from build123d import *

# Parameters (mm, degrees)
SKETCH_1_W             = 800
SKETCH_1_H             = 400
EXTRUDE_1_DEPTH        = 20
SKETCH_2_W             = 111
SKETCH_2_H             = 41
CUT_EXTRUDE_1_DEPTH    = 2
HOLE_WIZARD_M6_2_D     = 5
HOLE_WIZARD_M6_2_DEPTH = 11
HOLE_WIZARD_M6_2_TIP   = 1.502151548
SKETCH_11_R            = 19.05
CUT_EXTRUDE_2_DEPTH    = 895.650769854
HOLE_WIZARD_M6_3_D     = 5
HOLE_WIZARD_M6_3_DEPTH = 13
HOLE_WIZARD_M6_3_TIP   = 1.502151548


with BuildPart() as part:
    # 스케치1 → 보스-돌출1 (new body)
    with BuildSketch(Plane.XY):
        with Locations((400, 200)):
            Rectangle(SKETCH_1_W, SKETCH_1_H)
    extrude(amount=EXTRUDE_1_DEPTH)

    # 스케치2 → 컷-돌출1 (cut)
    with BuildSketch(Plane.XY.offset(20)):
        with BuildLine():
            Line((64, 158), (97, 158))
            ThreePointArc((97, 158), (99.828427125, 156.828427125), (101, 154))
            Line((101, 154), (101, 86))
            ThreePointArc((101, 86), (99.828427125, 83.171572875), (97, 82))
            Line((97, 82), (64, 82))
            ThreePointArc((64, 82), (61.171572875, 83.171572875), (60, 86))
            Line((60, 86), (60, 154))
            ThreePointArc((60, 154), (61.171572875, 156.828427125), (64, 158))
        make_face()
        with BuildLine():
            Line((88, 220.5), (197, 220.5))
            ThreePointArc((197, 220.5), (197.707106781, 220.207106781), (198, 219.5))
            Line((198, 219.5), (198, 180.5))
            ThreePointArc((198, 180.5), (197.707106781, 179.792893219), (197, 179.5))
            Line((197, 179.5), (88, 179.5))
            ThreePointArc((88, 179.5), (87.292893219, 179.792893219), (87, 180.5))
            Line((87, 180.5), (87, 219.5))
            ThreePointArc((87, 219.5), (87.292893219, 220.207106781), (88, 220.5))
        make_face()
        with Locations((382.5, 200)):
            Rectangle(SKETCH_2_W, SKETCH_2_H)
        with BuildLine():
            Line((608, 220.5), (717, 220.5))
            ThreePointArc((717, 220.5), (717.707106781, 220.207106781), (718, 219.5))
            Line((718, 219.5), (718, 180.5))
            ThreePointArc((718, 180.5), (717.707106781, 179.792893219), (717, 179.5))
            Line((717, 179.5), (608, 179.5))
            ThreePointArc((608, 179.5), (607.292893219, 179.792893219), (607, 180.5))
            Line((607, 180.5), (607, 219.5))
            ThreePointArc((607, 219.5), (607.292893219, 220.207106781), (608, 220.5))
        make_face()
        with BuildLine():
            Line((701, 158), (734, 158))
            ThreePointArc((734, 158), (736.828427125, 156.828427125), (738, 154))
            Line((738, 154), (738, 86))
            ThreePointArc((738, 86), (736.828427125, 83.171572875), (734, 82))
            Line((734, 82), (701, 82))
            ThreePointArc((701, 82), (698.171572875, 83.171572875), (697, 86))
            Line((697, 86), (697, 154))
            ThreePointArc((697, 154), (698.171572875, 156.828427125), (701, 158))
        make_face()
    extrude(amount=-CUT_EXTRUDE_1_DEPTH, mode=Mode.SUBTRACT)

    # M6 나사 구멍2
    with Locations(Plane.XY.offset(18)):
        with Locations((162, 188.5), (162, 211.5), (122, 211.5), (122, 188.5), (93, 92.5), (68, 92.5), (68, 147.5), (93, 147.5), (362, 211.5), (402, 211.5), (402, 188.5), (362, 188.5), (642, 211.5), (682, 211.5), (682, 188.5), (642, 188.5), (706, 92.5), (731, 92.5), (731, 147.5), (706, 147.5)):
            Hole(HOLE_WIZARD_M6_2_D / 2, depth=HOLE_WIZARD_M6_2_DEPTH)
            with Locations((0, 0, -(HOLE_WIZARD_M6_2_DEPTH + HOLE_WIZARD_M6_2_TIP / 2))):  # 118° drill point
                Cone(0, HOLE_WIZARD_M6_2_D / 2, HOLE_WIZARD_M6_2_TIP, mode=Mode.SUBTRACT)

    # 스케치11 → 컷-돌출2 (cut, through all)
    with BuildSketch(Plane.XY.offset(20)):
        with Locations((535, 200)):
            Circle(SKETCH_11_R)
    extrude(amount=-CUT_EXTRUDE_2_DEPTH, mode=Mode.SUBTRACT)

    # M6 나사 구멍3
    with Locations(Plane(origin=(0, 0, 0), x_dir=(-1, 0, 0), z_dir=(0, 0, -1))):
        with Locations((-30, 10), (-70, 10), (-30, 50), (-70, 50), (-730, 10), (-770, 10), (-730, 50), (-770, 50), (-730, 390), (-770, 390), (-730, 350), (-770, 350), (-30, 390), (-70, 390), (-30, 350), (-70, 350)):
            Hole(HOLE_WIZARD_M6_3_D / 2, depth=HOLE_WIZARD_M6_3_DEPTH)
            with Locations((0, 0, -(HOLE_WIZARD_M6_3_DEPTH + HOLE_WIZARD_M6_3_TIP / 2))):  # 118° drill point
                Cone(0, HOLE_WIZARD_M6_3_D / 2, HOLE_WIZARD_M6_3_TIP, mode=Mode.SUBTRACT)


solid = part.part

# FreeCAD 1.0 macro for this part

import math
import FreeCAD as App
import Part
import Sketcher

V = App.Vector


def add_polygon(sketch, points):
    """Adds a closed chain of lines whose ends are joined by coincident constraints."""
    first, n = sketch.GeometryCount, len(points)
    for a, b in zip(points, points[1:] + points[:1]):
        sketch.addGeometry(Part.LineSegment(App.Vector(*a, 0), App.Vector(*b, 0)), False)
    for i in range(n):
        sketch.addConstraint(Sketcher.Constraint("Coincident", first + i, 2, first + (i + 1) % n, 1))

doc = App.newDocument("Part")
body = doc.addObject("PartDesign::Body", "Body")

# Sketch on XY plane
sketch1 = body.newObject("Sketcher::SketchObject", "Sketch")
sketch1.AttachmentSupport = (doc.getObject("XY_Plane"), [""])
sketch1.MapMode = "FlatFace"
add_polygon(sketch1, [(0, 400), (0, 0), (800, 0), (800, 400)])  # lines 0-3
sketch1.addConstraint([
    Sketcher.Constraint("Vertical", 0),
    Sketcher.Constraint("Horizontal", 1),
    Sketcher.Constraint("Vertical", 2),
    Sketcher.Constraint("Horizontal", 3),
    Sketcher.Constraint("Coincident", 0, 2, -1, 1),
    Sketcher.Constraint("DistanceX", 1, 1, 1, 2, 800.0),
    Sketcher.Constraint("DistanceY", 0, 2, 0, 1, 400.0),
])
pad1 = body.newObject("PartDesign::Pad", "Pad")
pad1.Profile = sketch1
pad1.Length = 20

# Sketch on XY plane
sketch2 = body.newObject("Sketcher::SketchObject", "Sketch001")
sketch2.AttachmentSupport = (doc.getObject("XY_Plane"), [""])
sketch2.MapMode = "FlatFace"
sketch2.AttachmentOffset = App.Placement(V(0, 0, 20), App.Rotation())
sketch2.addGeometry(Part.LineSegment(V(97, 158, 0), V(64, 158, 0)), False)  # 0
sketch2.addGeometry(Part.ArcOfCircle(Part.Circle(V(64, 154, 0), V(0, 0, 1), 4), math.radians(90), math.radians(180)), False)  # 1
sketch2.addGeometry(Part.LineSegment(V(60, 154, 0), V(60, 86, 0)), False)  # 2
sketch2.addGeometry(Part.ArcOfCircle(Part.Circle(V(64, 86, 0), V(0, 0, 1), 4), math.radians(180), math.radians(270)), False)  # 3
sketch2.addGeometry(Part.LineSegment(V(64, 82, 0), V(97, 82, 0)), False)  # 4
sketch2.addGeometry(Part.ArcOfCircle(Part.Circle(V(97, 86, 0), V(0, 0, 1), 4), math.radians(-90), math.radians(0)), False)  # 5
sketch2.addGeometry(Part.LineSegment(V(101, 86, 0), V(101, 154, 0)), False)  # 6
sketch2.addGeometry(Part.ArcOfCircle(Part.Circle(V(97, 154, 0), V(0, 0, 1), 4), math.radians(0), math.radians(90)), False)  # 7
sketch2.addGeometry(Part.LineSegment(V(197, 220.5, 0), V(88, 220.5, 0)), False)  # 8
sketch2.addGeometry(Part.ArcOfCircle(Part.Circle(V(88, 219.5, 0), V(0, 0, 1), 1), math.radians(90), math.radians(180)), False)  # 9
sketch2.addGeometry(Part.LineSegment(V(87, 219.5, 0), V(87, 180.5, 0)), False)  # 10
sketch2.addGeometry(Part.ArcOfCircle(Part.Circle(V(88, 180.5, 0), V(0, 0, 1), 1), math.radians(-180), math.radians(-90)), False)  # 11
sketch2.addGeometry(Part.LineSegment(V(88, 179.5, 0), V(197, 179.5, 0)), False)  # 12
sketch2.addGeometry(Part.ArcOfCircle(Part.Circle(V(197, 180.5, 0), V(0, 0, 1), 1), math.radians(-90), math.radians(0)), False)  # 13
sketch2.addGeometry(Part.LineSegment(V(198, 180.5, 0), V(198, 219.5, 0)), False)  # 14
sketch2.addGeometry(Part.ArcOfCircle(Part.Circle(V(197, 219.5, 0), V(0, 0, 1), 1), math.radians(0), math.radians(90)), False)  # 15
add_polygon(sketch2, [(327, 220.5), (327, 179.5), (438, 179.5), (438, 220.5)])  # lines 16-19
sketch2.addGeometry(Part.LineSegment(V(717, 220.5, 0), V(608, 220.5, 0)), False)  # 20
sketch2.addGeometry(Part.ArcOfCircle(Part.Circle(V(608, 219.5, 0), V(0, 0, 1), 1), math.radians(90), math.radians(180)), False)  # 21
sketch2.addGeometry(Part.LineSegment(V(607, 219.5, 0), V(607, 180.5, 0)), False)  # 22
sketch2.addGeometry(Part.ArcOfCircle(Part.Circle(V(608, 180.5, 0), V(0, 0, 1), 1), math.radians(-180), math.radians(-90)), False)  # 23
sketch2.addGeometry(Part.LineSegment(V(608, 179.5, 0), V(717, 179.5, 0)), False)  # 24
sketch2.addGeometry(Part.ArcOfCircle(Part.Circle(V(717, 180.5, 0), V(0, 0, 1), 1), math.radians(-90), math.radians(0)), False)  # 25
sketch2.addGeometry(Part.LineSegment(V(718, 180.5, 0), V(718, 219.5, 0)), False)  # 26
sketch2.addGeometry(Part.ArcOfCircle(Part.Circle(V(717, 219.5, 0), V(0, 0, 1), 1), math.radians(0), math.radians(90)), False)  # 27
sketch2.addGeometry(Part.LineSegment(V(734, 158, 0), V(701, 158, 0)), False)  # 28
sketch2.addGeometry(Part.ArcOfCircle(Part.Circle(V(701, 154, 0), V(0, 0, 1), 4), math.radians(90), math.radians(180)), False)  # 29
sketch2.addGeometry(Part.LineSegment(V(697, 154, 0), V(697, 86, 0)), False)  # 30
sketch2.addGeometry(Part.ArcOfCircle(Part.Circle(V(701, 86, 0), V(0, 0, 1), 4), math.radians(180), math.radians(270)), False)  # 31
sketch2.addGeometry(Part.LineSegment(V(701, 82, 0), V(734, 82, 0)), False)  # 32
sketch2.addGeometry(Part.ArcOfCircle(Part.Circle(V(734, 86, 0), V(0, 0, 1), 4), math.radians(-90), math.radians(0)), False)  # 33
sketch2.addGeometry(Part.LineSegment(V(738, 86, 0), V(738, 154, 0)), False)  # 34
sketch2.addGeometry(Part.ArcOfCircle(Part.Circle(V(734, 154, 0), V(0, 0, 1), 4), math.radians(0), math.radians(90)), False)  # 35
sketch2.addConstraint([
    Sketcher.Constraint("Tangent", 0, 2, 1, 1),
    Sketcher.Constraint("Tangent", 1, 2, 2, 1),
    Sketcher.Constraint("Tangent", 2, 2, 3, 1),
    Sketcher.Constraint("Tangent", 3, 2, 4, 1),
    Sketcher.Constraint("Tangent", 4, 2, 5, 1),
    Sketcher.Constraint("Tangent", 5, 2, 6, 1),
    Sketcher.Constraint("Tangent", 6, 2, 7, 1),
    Sketcher.Constraint("Tangent", 7, 2, 0, 1),
    Sketcher.Constraint("Tangent", 8, 2, 9, 1),
    Sketcher.Constraint("Tangent", 9, 2, 10, 1),
    Sketcher.Constraint("Tangent", 10, 2, 11, 1),
    Sketcher.Constraint("Tangent", 11, 2, 12, 1),
    Sketcher.Constraint("Tangent", 12, 2, 13, 1),
    Sketcher.Constraint("Tangent", 13, 2, 14, 1),
    Sketcher.Constraint("Tangent", 14, 2, 15, 1),
    Sketcher.Constraint("Tangent", 15, 2, 8, 1),
    Sketcher.Constraint("Tangent", 20, 2, 21, 1),
    Sketcher.Constraint("Tangent", 21, 2, 22, 1),
    Sketcher.Constraint("Tangent", 22, 2, 23, 1),
    Sketcher.Constraint("Tangent", 23, 2, 24, 1),
    Sketcher.Constraint("Tangent", 24, 2, 25, 1),
    Sketcher.Constraint("Tangent", 25, 2, 26, 1),
    Sketcher.Constraint("Tangent", 26, 2, 27, 1),
    Sketcher.Constraint("Tangent", 27, 2, 20, 1),
    Sketcher.Constraint("Tangent", 28, 2, 29, 1),
    Sketcher.Constraint("Tangent", 29, 2, 30, 1),
    Sketcher.Constraint("Tangent", 30, 2, 31, 1),
    Sketcher.Constraint("Tangent", 31, 2, 32, 1),
    Sketcher.Constraint("Tangent", 32, 2, 33, 1),
    Sketcher.Constraint("Tangent", 33, 2, 34, 1),
    Sketcher.Constraint("Tangent", 34, 2, 35, 1),
    Sketcher.Constraint("Tangent", 35, 2, 28, 1),
    Sketcher.Constraint("Horizontal", 0),
    Sketcher.Constraint("Vertical", 2),
    Sketcher.Constraint("Horizontal", 4),
    Sketcher.Constraint("Vertical", 6),
    Sketcher.Constraint("Horizontal", 8),
    Sketcher.Constraint("Vertical", 10),
    Sketcher.Constraint("Horizontal", 12),
    Sketcher.Constraint("Vertical", 14),
    Sketcher.Constraint("Vertical", 16),
    Sketcher.Constraint("Horizontal", 17),
    Sketcher.Constraint("Vertical", 18),
    Sketcher.Constraint("Horizontal", 19),
    Sketcher.Constraint("Horizontal", 20),
    Sketcher.Constraint("Vertical", 22),
    Sketcher.Constraint("Horizontal", 24),
    Sketcher.Constraint("Vertical", 26),
    Sketcher.Constraint("Horizontal", 28),
    Sketcher.Constraint("Vertical", 30),
    Sketcher.Constraint("Horizontal", 32),
    Sketcher.Constraint("Vertical", 34),
    Sketcher.Constraint("Equal", 1, 3),
    Sketcher.Constraint("Equal", 3, 5),
    Sketcher.Constraint("Equal", 5, 7),
    Sketcher.Constraint("Equal", 9, 11),
    Sketcher.Constraint("Equal", 11, 13),
    Sketcher.Constraint("Equal", 13, 15),
    Sketcher.Constraint("Equal", 15, 21),
    Sketcher.Constraint("Equal", 21, 23),
    Sketcher.Constraint("Equal", 23, 25),
    Sketcher.Constraint("Equal", 25, 27),
    Sketcher.Constraint("Equal", 7, 29),
    Sketcher.Constraint("Equal", 29, 31),
    Sketcher.Constraint("Equal", 31, 33),
    Sketcher.Constraint("Equal", 33, 35),
    Sketcher.Constraint("Horizontal", 15, 3, 21, 3),
    Sketcher.Constraint("Horizontal", 13, 3, 23, 3),
    Sketcher.Constraint("Horizontal", 7, 3, 29, 3),
    Sketcher.Constraint("Horizontal", 5, 3, 31, 3),
    Sketcher.Constraint("Horizontal", 12, 2, 16, 2),
    Sketcher.Constraint("Horizontal", 15, 2, 18, 2),
    Sketcher.Constraint("Equal", 12, 20),
    Sketcher.Constraint("Equal", 4, 28),
    Sketcher.Constraint("Radius", 1, 4.0),
    Sketcher.Constraint("Radius", 9, 1.0),
    Sketcher.Constraint("DistanceX", 0, 2, 0, 1, 33.0),
    Sketcher.Constraint("DistanceX", 8, 2, 8, 1, 109.0),
    Sketcher.Constraint("DistanceX", 17, 1, 17, 2, 111.0),
    Sketcher.Constraint("DistanceY", 2, 2, 2, 1, 68.0),
    Sketcher.Constraint("DistanceY", 10, 2, 10, 1, 39.0),
    Sketcher.Constraint("DistanceX", -1, 1, 1, 3, 64.0),
    Sketcher.Constraint("DistanceY", -1, 1, 1, 3, 154.0),
    Sketcher.Constraint("DistanceX", -1, 1, 9, 3, 88.0),
    Sketcher.Constraint("DistanceX", -1, 1, 21, 3, 608.0),
    Sketcher.Constraint("DistanceX", -1, 1, 29, 3, 701.0),
    Sketcher.Constraint("DistanceX", -1, 1, 16, 2, 327.0),
    Sketcher.Constraint("DistanceY", -1, 1, 9, 3, 219.5),
])
pocket1 = body.newObject("PartDesign::Pocket", "Pocket")
pocket1.Profile = sketch2
pocket1.Length = 2

# Sketch on XY plane
sketch3 = body.newObject("Sketcher::SketchObject", "Sketch002")
sketch3.AttachmentSupport = (doc.getObject("XY_Plane"), [""])
sketch3.MapMode = "FlatFace"
sketch3.AttachmentOffset = App.Placement(V(0, 0, 18), App.Rotation())
sketch3.addGeometry([
    Part.Circle(V(162, 188.5, 0), V(0, 0, 1), 2.5),  # 0
    Part.Circle(V(162, 211.5, 0), V(0, 0, 1), 2.5),  # 1
    Part.Circle(V(122, 211.5, 0), V(0, 0, 1), 2.5),  # 2
    Part.Circle(V(122, 188.5, 0), V(0, 0, 1), 2.5),  # 3
    Part.Circle(V(93, 92.5, 0), V(0, 0, 1), 2.5),  # 4
    Part.Circle(V(68, 92.5, 0), V(0, 0, 1), 2.5),  # 5
    Part.Circle(V(68, 147.5, 0), V(0, 0, 1), 2.5),  # 6
    Part.Circle(V(93, 147.5, 0), V(0, 0, 1), 2.5),  # 7
    Part.Circle(V(362, 211.5, 0), V(0, 0, 1), 2.5),  # 8
    Part.Circle(V(402, 211.5, 0), V(0, 0, 1), 2.5),  # 9
    Part.Circle(V(402, 188.5, 0), V(0, 0, 1), 2.5),  # 10
    Part.Circle(V(362, 188.5, 0), V(0, 0, 1), 2.5),  # 11
    Part.Circle(V(642, 211.5, 0), V(0, 0, 1), 2.5),  # 12
    Part.Circle(V(682, 211.5, 0), V(0, 0, 1), 2.5),  # 13
    Part.Circle(V(682, 188.5, 0), V(0, 0, 1), 2.5),  # 14
    Part.Circle(V(642, 188.5, 0), V(0, 0, 1), 2.5),  # 15
    Part.Circle(V(706, 92.5, 0), V(0, 0, 1), 2.5),  # 16
    Part.Circle(V(731, 92.5, 0), V(0, 0, 1), 2.5),  # 17
    Part.Circle(V(731, 147.5, 0), V(0, 0, 1), 2.5),  # 18
    Part.Circle(V(706, 147.5, 0), V(0, 0, 1), 2.5),  # 19
], False)
sketch3.addConstraint([
    Sketcher.Constraint("Equal", 0, 1),
    Sketcher.Constraint("Equal", 1, 2),
    Sketcher.Constraint("Equal", 2, 3),
    Sketcher.Constraint("Equal", 3, 4),
    Sketcher.Constraint("Equal", 4, 5),
    Sketcher.Constraint("Equal", 5, 6),
    Sketcher.Constraint("Equal", 6, 7),
    Sketcher.Constraint("Equal", 7, 8),
    Sketcher.Constraint("Equal", 8, 9),
    Sketcher.Constraint("Equal", 9, 10),
    Sketcher.Constraint("Equal", 10, 11),
    Sketcher.Constraint("Equal", 11, 12),
    Sketcher.Constraint("Equal", 12, 13),
    Sketcher.Constraint("Equal", 13, 14),
    Sketcher.Constraint("Equal", 14, 15),
    Sketcher.Constraint("Equal", 15, 16),
    Sketcher.Constraint("Equal", 16, 17),
    Sketcher.Constraint("Equal", 17, 18),
    Sketcher.Constraint("Equal", 18, 19),
    Sketcher.Constraint("Horizontal", 1, 3, 2, 3),
    Sketcher.Constraint("Horizontal", 0, 3, 3, 3),
    Sketcher.Constraint("Horizontal", 4, 3, 5, 3),
    Sketcher.Constraint("Horizontal", 6, 3, 7, 3),
    Sketcher.Constraint("Horizontal", 2, 3, 8, 3),
    Sketcher.Constraint("Horizontal", 8, 3, 9, 3),
    Sketcher.Constraint("Horizontal", 3, 3, 10, 3),
    Sketcher.Constraint("Horizontal", 10, 3, 11, 3),
    Sketcher.Constraint("Horizontal", 9, 3, 12, 3),
    Sketcher.Constraint("Horizontal", 12, 3, 13, 3),
    Sketcher.Constraint("Horizontal", 11, 3, 14, 3),
    Sketcher.Constraint("Horizontal", 14, 3, 15, 3),
    Sketcher.Constraint("Horizontal", 5, 3, 16, 3),
    Sketcher.Constraint("Horizontal", 16, 3, 17, 3),
    Sketcher.Constraint("Horizontal", 7, 3, 18, 3),
    Sketcher.Constraint("Horizontal", 18, 3, 19, 3),
    Sketcher.Constraint("Vertical", 0, 3, 1, 3),
    Sketcher.Constraint("Vertical", 2, 3, 3, 3),
    Sketcher.Constraint("Vertical", 5, 3, 6, 3),
    Sketcher.Constraint("Vertical", 4, 3, 7, 3),
    Sketcher.Constraint("Vertical", 9, 3, 10, 3),
    Sketcher.Constraint("Vertical", 8, 3, 11, 3),
    Sketcher.Constraint("Vertical", 13, 3, 14, 3),
    Sketcher.Constraint("Vertical", 12, 3, 15, 3),
    Sketcher.Constraint("Vertical", 17, 3, 18, 3),
    Sketcher.Constraint("Vertical", 16, 3, 19, 3),
    Sketcher.Constraint("Diameter", 0, 5.0),
    Sketcher.Constraint("DistanceX", -1, 1, 0, 3, 162.0),
    Sketcher.Constraint("DistanceX", -1, 1, 2, 3, 122.0),
    Sketcher.Constraint("DistanceX", -1, 1, 4, 3, 93.0),
    Sketcher.Constraint("DistanceX", -1, 1, 5, 3, 68.0),
    Sketcher.Constraint("DistanceX", -1, 1, 8, 3, 362.0),
    Sketcher.Constraint("DistanceX", -1, 1, 9, 3, 402.0),
    Sketcher.Constraint("DistanceX", -1, 1, 12, 3, 642.0),
    Sketcher.Constraint("DistanceX", -1, 1, 13, 3, 682.0),
    Sketcher.Constraint("DistanceX", -1, 1, 16, 3, 706.0),
    Sketcher.Constraint("DistanceX", -1, 1, 17, 3, 731.0),
    Sketcher.Constraint("DistanceY", 0, 3, 1, 3, 23.0),
    Sketcher.Constraint("DistanceY", 4, 3, 3, 3, 96.0),
    Sketcher.Constraint("DistanceY", 5, 3, 6, 3, 55.0),
    Sketcher.Constraint("DistanceY", -1, 1, 0, 3, 188.5),
])
doc.recompute()
hole = body.newObject("PartDesign::Hole", "Hole")
hole.Profile = sketch3
hole.ThreadType = "None"
hole.Diameter = 5
hole.DepthType = "Dimension"
hole.Depth = 11
hole.DrillPoint = "Angled"
hole.DrillPointAngle = 118

# Sketch on XY plane
sketch4 = body.newObject("Sketcher::SketchObject", "Sketch003")
sketch4.AttachmentSupport = (doc.getObject("XY_Plane"), [""])
sketch4.MapMode = "FlatFace"
sketch4.AttachmentOffset = App.Placement(V(0, 0, 20), App.Rotation())
sketch4.addGeometry(Part.Circle(V(535, 200, 0), V(0, 0, 1), 19), False)
sketch4.addConstraint([
    Sketcher.Constraint("Diameter", 0, 38.1),
    Sketcher.Constraint("DistanceX", -1, 1, 0, 3, 535.0),
    Sketcher.Constraint("DistanceY", -1, 1, 0, 3, 200.0),
])
pocket2 = body.newObject("PartDesign::Pocket", "Pocket001")
pocket2.Profile = sketch4
pocket2.Type = "ThroughAll"

# Sketch on XY plane
sketch5 = body.newObject("Sketcher::SketchObject", "Sketch004")
sketch5.AttachmentSupport = (doc.getObject("XY_Plane"), [""])
sketch5.MapMode = "FlatFace"
sketch5.addGeometry([
    Part.Circle(V(30, 10, 0), V(0, 0, 1), 2.5),  # 0
    Part.Circle(V(70, 10, 0), V(0, 0, 1), 2.5),  # 1
    Part.Circle(V(30, 50, 0), V(0, 0, 1), 2.5),  # 2
    Part.Circle(V(70, 50, 0), V(0, 0, 1), 2.5),  # 3
    Part.Circle(V(730, 10, 0), V(0, 0, 1), 2.5),  # 4
    Part.Circle(V(770, 10, 0), V(0, 0, 1), 2.5),  # 5
    Part.Circle(V(730, 50, 0), V(0, 0, 1), 2.5),  # 6
    Part.Circle(V(770, 50, 0), V(0, 0, 1), 2.5),  # 7
    Part.Circle(V(730, 390, 0), V(0, 0, 1), 2.5),  # 8
    Part.Circle(V(770, 390, 0), V(0, 0, 1), 2.5),  # 9
    Part.Circle(V(730, 350, 0), V(0, 0, 1), 2.5),  # 10
    Part.Circle(V(770, 350, 0), V(0, 0, 1), 2.5),  # 11
    Part.Circle(V(30, 390, 0), V(0, 0, 1), 2.5),  # 12
    Part.Circle(V(70, 390, 0), V(0, 0, 1), 2.5),  # 13
    Part.Circle(V(30, 350, 0), V(0, 0, 1), 2.5),  # 14
    Part.Circle(V(70, 350, 0), V(0, 0, 1), 2.5),  # 15
], False)
sketch5.addConstraint([
    Sketcher.Constraint("Equal", 0, 1),
    Sketcher.Constraint("Equal", 1, 2),
    Sketcher.Constraint("Equal", 2, 3),
    Sketcher.Constraint("Equal", 3, 4),
    Sketcher.Constraint("Equal", 4, 5),
    Sketcher.Constraint("Equal", 5, 6),
    Sketcher.Constraint("Equal", 6, 7),
    Sketcher.Constraint("Equal", 7, 8),
    Sketcher.Constraint("Equal", 8, 9),
    Sketcher.Constraint("Equal", 9, 10),
    Sketcher.Constraint("Equal", 10, 11),
    Sketcher.Constraint("Equal", 11, 12),
    Sketcher.Constraint("Equal", 12, 13),
    Sketcher.Constraint("Equal", 13, 14),
    Sketcher.Constraint("Equal", 14, 15),
    Sketcher.Constraint("Horizontal", 0, 3, 1, 3),
    Sketcher.Constraint("Horizontal", 2, 3, 3, 3),
    Sketcher.Constraint("Horizontal", 1, 3, 4, 3),
    Sketcher.Constraint("Horizontal", 4, 3, 5, 3),
    Sketcher.Constraint("Horizontal", 3, 3, 6, 3),
    Sketcher.Constraint("Horizontal", 6, 3, 7, 3),
    Sketcher.Constraint("Horizontal", 8, 3, 9, 3),
    Sketcher.Constraint("Horizontal", 10, 3, 11, 3),
    Sketcher.Constraint("Horizontal", 9, 3, 12, 3),
    Sketcher.Constraint("Horizontal", 12, 3, 13, 3),
    Sketcher.Constraint("Horizontal", 11, 3, 14, 3),
    Sketcher.Constraint("Horizontal", 14, 3, 15, 3),
    Sketcher.Constraint("Vertical", 0, 3, 2, 3),
    Sketcher.Constraint("Vertical", 1, 3, 3, 3),
    Sketcher.Constraint("Vertical", 4, 3, 6, 3),
    Sketcher.Constraint("Vertical", 5, 3, 7, 3),
    Sketcher.Constraint("Vertical", 6, 3, 8, 3),
    Sketcher.Constraint("Vertical", 7, 3, 9, 3),
    Sketcher.Constraint("Vertical", 8, 3, 10, 3),
    Sketcher.Constraint("Vertical", 9, 3, 11, 3),
    Sketcher.Constraint("Vertical", 2, 3, 12, 3),
    Sketcher.Constraint("Vertical", 3, 3, 13, 3),
    Sketcher.Constraint("Vertical", 12, 3, 14, 3),
    Sketcher.Constraint("Vertical", 13, 3, 15, 3),
    Sketcher.Constraint("Diameter", 0, 5.0),
    Sketcher.Constraint("DistanceX", -1, 1, 0, 3, 30.0),
    Sketcher.Constraint("DistanceY", -1, 1, 0, 3, 10.0),
    Sketcher.Constraint("DistanceX", -1, 1, 1, 3, 70.0),
    Sketcher.Constraint("DistanceY", -1, 1, 2, 3, 50.0),
    Sketcher.Constraint("DistanceX", -1, 1, 4, 3, 730.0),
    Sketcher.Constraint("DistanceX", -1, 1, 5, 3, 770.0),
    Sketcher.Constraint("DistanceY", -1, 1, 8, 3, 390.0),
    Sketcher.Constraint("DistanceY", -1, 1, 10, 3, 350.0),
])
doc.recompute()
hole2 = body.newObject("PartDesign::Hole", "Hole001")
hole2.Profile = sketch5
hole2.ThreadType = "None"
hole2.Diameter = 5
hole2.DepthType = "Dimension"
hole2.Depth = 13
hole2.DrillPoint = "Angled"
hole2.DrillPointAngle = 118
hole2.Reversed = True

doc.recompute()
